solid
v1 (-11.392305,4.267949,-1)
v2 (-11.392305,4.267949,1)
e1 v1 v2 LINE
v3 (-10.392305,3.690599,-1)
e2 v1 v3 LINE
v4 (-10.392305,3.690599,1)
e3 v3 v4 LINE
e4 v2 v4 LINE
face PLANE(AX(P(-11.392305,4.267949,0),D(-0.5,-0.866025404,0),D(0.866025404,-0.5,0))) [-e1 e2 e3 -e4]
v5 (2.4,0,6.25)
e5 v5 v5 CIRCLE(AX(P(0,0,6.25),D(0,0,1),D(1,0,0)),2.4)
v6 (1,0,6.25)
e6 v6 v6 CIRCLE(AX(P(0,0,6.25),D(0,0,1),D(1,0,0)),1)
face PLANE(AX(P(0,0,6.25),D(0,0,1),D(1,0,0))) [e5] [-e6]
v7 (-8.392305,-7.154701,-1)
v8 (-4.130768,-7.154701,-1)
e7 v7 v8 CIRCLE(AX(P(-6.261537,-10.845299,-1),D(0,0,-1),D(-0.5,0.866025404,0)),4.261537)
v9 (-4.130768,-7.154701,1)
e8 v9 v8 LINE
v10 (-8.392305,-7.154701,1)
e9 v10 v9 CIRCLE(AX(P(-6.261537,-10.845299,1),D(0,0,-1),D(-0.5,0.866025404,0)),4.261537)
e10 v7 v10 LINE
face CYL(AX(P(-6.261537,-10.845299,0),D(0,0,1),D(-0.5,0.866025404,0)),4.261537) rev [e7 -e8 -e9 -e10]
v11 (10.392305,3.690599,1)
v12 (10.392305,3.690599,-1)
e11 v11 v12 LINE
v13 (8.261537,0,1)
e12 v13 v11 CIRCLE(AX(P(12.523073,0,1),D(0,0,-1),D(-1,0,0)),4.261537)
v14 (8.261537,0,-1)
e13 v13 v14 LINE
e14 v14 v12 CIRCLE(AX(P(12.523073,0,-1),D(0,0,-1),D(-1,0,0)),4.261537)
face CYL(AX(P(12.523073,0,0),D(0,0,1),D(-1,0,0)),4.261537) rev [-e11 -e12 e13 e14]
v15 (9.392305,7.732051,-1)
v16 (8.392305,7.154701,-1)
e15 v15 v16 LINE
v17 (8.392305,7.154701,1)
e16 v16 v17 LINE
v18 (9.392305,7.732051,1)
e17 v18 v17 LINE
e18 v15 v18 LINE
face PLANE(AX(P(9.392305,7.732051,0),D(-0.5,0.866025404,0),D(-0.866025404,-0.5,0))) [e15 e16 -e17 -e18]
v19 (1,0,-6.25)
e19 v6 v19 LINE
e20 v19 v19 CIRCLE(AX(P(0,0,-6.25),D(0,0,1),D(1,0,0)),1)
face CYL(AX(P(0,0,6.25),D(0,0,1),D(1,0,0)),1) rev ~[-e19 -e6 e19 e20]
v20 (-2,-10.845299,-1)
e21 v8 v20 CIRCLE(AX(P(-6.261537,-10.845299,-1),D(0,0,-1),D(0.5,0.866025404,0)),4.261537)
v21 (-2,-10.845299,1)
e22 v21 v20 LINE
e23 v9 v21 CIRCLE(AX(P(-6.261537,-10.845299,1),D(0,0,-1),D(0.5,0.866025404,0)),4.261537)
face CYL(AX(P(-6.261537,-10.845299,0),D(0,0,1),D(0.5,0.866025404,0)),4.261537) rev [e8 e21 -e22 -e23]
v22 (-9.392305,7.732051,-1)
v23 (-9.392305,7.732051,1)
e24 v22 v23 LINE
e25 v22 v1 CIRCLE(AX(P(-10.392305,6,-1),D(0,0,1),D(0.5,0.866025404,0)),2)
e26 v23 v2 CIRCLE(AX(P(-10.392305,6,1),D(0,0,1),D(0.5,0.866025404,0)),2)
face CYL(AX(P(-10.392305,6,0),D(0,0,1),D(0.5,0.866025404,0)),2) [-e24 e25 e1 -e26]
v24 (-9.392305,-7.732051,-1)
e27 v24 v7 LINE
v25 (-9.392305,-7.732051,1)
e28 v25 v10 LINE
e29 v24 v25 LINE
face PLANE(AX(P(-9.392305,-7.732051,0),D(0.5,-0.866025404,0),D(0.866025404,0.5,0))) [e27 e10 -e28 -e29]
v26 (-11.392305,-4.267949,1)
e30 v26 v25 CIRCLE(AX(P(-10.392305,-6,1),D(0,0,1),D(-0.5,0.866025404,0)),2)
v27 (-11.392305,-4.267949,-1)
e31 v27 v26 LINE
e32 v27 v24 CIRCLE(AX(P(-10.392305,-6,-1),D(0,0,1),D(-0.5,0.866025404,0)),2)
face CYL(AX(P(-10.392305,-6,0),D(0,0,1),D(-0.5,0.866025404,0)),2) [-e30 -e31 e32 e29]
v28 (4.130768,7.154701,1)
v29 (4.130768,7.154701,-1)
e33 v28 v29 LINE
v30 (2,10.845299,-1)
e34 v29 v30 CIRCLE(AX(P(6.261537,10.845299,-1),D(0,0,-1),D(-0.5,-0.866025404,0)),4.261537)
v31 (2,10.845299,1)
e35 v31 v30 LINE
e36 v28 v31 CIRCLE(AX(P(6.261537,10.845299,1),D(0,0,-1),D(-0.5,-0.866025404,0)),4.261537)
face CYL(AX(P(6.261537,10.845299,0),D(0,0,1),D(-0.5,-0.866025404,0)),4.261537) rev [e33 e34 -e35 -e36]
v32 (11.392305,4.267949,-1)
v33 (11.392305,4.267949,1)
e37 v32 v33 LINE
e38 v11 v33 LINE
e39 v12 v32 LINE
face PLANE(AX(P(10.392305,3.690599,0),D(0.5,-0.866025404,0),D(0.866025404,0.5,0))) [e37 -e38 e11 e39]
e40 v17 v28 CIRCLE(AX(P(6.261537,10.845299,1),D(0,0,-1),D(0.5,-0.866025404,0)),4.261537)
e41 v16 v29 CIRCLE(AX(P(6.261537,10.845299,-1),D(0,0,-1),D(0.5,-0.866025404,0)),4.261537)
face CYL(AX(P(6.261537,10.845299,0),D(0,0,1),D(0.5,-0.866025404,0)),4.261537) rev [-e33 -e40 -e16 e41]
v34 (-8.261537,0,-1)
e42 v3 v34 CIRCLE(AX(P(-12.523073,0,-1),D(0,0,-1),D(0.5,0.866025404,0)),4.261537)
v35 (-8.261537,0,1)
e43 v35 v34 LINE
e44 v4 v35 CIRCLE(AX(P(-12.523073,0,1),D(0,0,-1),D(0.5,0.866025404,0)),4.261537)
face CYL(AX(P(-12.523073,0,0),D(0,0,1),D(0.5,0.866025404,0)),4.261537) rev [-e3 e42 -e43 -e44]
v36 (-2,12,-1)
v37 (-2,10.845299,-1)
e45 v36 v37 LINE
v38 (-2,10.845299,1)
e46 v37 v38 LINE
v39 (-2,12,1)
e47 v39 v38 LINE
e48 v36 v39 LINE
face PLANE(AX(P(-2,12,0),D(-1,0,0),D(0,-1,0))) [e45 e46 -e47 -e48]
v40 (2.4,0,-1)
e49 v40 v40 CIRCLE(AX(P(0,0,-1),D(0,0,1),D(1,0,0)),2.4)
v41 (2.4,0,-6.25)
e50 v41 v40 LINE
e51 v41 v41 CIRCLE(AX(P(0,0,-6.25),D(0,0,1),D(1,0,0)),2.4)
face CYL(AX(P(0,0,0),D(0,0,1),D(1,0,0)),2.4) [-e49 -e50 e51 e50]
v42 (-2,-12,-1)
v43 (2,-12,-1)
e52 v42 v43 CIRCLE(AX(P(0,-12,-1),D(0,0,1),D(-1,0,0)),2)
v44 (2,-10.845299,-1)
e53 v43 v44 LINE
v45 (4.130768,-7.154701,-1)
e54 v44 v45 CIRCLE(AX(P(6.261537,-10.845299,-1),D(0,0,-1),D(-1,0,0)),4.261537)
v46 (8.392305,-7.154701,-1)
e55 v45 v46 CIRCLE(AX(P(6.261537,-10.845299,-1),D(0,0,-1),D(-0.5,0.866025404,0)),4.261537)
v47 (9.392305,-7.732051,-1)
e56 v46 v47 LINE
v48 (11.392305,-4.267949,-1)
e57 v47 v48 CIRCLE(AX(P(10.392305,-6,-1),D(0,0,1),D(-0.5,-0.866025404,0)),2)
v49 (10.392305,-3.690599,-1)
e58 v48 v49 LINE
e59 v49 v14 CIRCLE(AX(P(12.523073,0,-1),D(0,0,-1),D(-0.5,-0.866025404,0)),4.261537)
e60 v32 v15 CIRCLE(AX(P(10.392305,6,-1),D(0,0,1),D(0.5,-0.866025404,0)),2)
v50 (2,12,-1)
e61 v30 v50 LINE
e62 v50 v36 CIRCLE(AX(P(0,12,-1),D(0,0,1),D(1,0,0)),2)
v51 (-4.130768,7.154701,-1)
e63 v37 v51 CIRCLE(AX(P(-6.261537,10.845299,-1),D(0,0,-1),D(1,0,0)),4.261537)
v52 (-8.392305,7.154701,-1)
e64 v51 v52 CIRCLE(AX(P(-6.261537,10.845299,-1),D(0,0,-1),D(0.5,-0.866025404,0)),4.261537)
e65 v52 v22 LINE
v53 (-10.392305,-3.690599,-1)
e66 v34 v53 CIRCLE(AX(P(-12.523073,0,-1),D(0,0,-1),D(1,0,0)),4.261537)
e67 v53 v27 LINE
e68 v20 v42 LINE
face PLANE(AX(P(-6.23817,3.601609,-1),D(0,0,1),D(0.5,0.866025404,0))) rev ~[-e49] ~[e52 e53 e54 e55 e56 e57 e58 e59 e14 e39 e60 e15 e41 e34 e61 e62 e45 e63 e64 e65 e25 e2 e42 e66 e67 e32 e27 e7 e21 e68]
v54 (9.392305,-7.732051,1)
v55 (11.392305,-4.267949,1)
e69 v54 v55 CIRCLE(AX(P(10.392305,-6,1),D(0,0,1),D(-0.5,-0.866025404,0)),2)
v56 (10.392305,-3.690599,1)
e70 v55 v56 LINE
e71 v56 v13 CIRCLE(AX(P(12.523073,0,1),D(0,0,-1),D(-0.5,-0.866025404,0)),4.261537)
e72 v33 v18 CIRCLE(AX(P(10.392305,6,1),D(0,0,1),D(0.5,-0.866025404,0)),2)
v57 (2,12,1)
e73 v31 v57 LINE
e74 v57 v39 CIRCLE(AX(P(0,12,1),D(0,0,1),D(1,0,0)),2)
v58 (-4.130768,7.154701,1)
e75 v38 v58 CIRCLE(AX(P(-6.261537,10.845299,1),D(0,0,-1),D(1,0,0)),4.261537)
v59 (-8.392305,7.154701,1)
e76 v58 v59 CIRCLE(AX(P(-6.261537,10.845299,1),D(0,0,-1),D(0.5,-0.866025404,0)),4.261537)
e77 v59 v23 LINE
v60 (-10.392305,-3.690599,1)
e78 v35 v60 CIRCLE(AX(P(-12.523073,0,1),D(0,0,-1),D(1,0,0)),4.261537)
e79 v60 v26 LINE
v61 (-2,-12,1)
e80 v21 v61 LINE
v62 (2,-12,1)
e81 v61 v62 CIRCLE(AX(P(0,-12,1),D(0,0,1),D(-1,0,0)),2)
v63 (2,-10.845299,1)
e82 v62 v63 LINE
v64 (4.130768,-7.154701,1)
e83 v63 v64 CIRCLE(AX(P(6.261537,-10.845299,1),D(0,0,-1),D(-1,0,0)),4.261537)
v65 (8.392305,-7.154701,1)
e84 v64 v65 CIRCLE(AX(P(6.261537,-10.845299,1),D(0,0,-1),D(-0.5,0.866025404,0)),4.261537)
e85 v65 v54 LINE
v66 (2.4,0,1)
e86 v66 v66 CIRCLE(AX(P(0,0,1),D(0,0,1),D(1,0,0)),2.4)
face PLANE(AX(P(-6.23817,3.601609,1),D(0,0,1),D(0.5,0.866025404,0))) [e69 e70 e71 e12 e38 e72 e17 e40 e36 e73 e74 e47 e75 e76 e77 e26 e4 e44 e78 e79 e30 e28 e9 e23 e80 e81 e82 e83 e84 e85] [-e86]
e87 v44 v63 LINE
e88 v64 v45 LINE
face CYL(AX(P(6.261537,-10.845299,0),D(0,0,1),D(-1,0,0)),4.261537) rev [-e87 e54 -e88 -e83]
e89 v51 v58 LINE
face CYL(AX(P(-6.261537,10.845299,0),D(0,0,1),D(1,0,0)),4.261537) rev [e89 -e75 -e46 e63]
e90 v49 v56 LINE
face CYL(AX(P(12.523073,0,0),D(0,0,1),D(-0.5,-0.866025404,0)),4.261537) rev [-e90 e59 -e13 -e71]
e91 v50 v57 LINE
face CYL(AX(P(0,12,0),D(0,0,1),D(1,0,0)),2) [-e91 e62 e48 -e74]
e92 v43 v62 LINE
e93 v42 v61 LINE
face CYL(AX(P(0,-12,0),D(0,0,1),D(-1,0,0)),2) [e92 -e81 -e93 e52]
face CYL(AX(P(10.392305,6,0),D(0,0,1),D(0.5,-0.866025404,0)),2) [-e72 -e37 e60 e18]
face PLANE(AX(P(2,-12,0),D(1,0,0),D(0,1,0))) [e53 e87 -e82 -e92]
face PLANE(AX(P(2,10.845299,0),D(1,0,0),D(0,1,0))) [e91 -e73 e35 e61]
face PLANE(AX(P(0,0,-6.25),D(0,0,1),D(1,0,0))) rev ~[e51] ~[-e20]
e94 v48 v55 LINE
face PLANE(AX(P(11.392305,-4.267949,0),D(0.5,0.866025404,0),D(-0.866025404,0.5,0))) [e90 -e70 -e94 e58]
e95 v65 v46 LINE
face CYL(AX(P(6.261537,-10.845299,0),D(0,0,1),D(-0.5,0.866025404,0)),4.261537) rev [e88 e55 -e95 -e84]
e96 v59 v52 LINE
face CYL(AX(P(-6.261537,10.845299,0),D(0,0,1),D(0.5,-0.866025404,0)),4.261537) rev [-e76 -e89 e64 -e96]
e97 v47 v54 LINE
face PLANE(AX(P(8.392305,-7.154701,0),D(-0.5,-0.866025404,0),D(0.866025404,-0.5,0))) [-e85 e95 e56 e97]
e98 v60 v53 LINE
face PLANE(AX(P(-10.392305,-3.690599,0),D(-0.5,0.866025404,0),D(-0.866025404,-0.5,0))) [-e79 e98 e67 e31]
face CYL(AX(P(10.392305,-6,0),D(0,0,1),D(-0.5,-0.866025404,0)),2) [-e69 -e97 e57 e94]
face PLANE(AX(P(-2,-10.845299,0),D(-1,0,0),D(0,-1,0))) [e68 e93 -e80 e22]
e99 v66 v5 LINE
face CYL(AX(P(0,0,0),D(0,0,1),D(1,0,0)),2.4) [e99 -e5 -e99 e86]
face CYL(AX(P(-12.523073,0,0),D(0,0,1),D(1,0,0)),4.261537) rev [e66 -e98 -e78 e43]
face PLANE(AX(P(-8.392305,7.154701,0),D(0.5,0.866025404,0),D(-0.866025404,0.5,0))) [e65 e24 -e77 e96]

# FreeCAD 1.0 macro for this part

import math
import FreeCAD as App
import Part
import Sketcher
Q = App.Units.Quantity

doc = App.newDocument("Part")
body = doc.addObject("PartDesign::Body", "Body")

# Sketch on XY plane
sketch1 = body.newObject("Sketcher::SketchObject", "Sketch")
sketch1.AttachmentSupport = (doc.getObject("XY_Plane"), [""])
sketch1.MapMode = "FlatFace"
sketch1.addGeometry([
    Part.LineSegment(App.Vector(2, 10.8, 0), App.Vector(2, 12, 0)),  # 0
    Part.ArcOfCircle(Part.Circle(App.Vector(0, 12, 0), App.Vector(0, 0, 1), 2), math.radians(0), math.radians(180)),  # 1
    Part.LineSegment(App.Vector(-2, 12, 0), App.Vector(-2, 10.8, 0)),  # 2
    Part.ArcOfCircle(Part.Circle(App.Vector(-6.3, 10.8, 0), App.Vector(0, 0, 1), 4.3), math.radians(-60), math.radians(0)),  # 3
    Part.LineSegment(App.Vector(-4.1, 7.2, 0), App.Vector(0, 0, 0)),  # 4
    Part.LineSegment(App.Vector(0, 0, 0), App.Vector(4.1, 7.2, 0)),  # 5
    Part.ArcOfCircle(Part.Circle(App.Vector(6.3, 10.8, 0), App.Vector(0, 0, 1), 4.3), math.radians(180), math.radians(240)),  # 6
], False)
sketch1.addConstraint([
    Sketcher.Constraint("Tangent", 0, 2, 1, 1),
    Sketcher.Constraint("Tangent", 1, 2, 2, 1),
    Sketcher.Constraint("Tangent", 2, 2, 3, 2),
    Sketcher.Constraint("Coincident", 3, 1, 4, 1),
    Sketcher.Constraint("Coincident", 4, 2, 5, 1),
    Sketcher.Constraint("Coincident", 5, 2, 6, 2),
    Sketcher.Constraint("Tangent", 6, 1, 0, 1),
    Sketcher.Constraint("Vertical", 0),
    Sketcher.Constraint("Vertical", 2),
    Sketcher.Constraint("Coincident", 4, 2, -1, 1),
    Sketcher.Constraint("Equal", 3, 6),
    Sketcher.Constraint("Symmetric", 3, 3, 6, 3, -2),
    Sketcher.Constraint("Horizontal", 3, 1, 5, 2),
    Sketcher.Constraint("Radius", 1, 2.0),
    Sketcher.Constraint("Angle", 4, Q("-60 deg")),
    Sketcher.Constraint("DistanceY", -1, 1, 1, 3, 12.0),
    Sketcher.Constraint("DistanceY", 0, 1, 0, 2, 1.154701),
    Sketcher.Constraint("Radius", 3, 4.261537),
])
pad1 = body.newObject("PartDesign::Pad", "Pad")
pad1.Profile = sketch1
pad1.Length = 2
pad1.Midplane = True
body2 = doc.addObject("PartDesign::Body", "Body001")
doc.recompute()

body2.BaseFeature = body
doc.recompute()

body3 = doc.addObject("PartDesign::Body", "Body002")
body3.BaseFeature = body
body3.Placement = App.Placement(App.Vector(0, 0, 0), App.Rotation(App.Vector(0, 0, -1), 60))
boolean = body2.newObject("PartDesign::Boolean", "Boolean")
boolean.Type = "Fuse"
boolean.addObjects([body3])
doc.recompute()

body4 = doc.addObject("PartDesign::Body", "Body003")
body4.BaseFeature = body
body4.Placement = App.Placement(App.Vector(0, 0, 0), App.Rotation(App.Vector(0, 0, -1), 120))
boolean2 = body2.newObject("PartDesign::Boolean", "Boolean001")
boolean2.Type = "Fuse"
boolean2.addObjects([body4])
doc.recompute()

body5 = doc.addObject("PartDesign::Body", "Body004")
body5.BaseFeature = body
body5.Placement = App.Placement(App.Vector(0, 0, 0), App.Rotation(App.Vector(0, 0, -1), 180))
boolean3 = body2.newObject("PartDesign::Boolean", "Boolean002")
boolean3.Type = "Fuse"
boolean3.addObjects([body5])
doc.recompute()

body6 = doc.addObject("PartDesign::Body", "Body005")
body6.BaseFeature = body
body6.Placement = App.Placement(App.Vector(0, 0, 0), App.Rotation(App.Vector(0, 0, -1), 240))
boolean4 = body2.newObject("PartDesign::Boolean", "Boolean003")
boolean4.Type = "Fuse"
boolean4.addObjects([body6])
doc.recompute()

body.Placement = App.Placement(App.Vector(0, 0, 0), App.Rotation(App.Vector(0, 0, -1), 300))
boolean5 = body2.newObject("PartDesign::Boolean", "Boolean004")
boolean5.Type = "Fuse"
boolean5.addObjects([body])

# Sketch on XY plane
sketch2 = body2.newObject("Sketcher::SketchObject", "Sketch001")
sketch2.AttachmentSupport = (doc.getObject("XY_Plane001"), [""])
sketch2.MapMode = "FlatFace"
sketch2.addGeometry(Part.Circle(App.Vector(0, 0, 0), App.Vector(0, 0, 1), 2.4), False)
sketch2.addConstraint([
    Sketcher.Constraint("Coincident", 0, 3, -1, 1),
    Sketcher.Constraint("Diameter", 0, 4.8),
])
pad2 = body2.newObject("PartDesign::Pad", "Pad001")
pad2.Profile = sketch2
pad2.Length = 12.5
pad2.Midplane = True

# Sketch on XY plane
sketch3 = body2.newObject("Sketcher::SketchObject", "Sketch002")
sketch3.AttachmentSupport = (doc.getObject("XY_Plane001"), [""])
sketch3.MapMode = "FlatFace"
sketch3.AttachmentOffset = App.Placement(App.Vector(0, 0, 6.25), App.Rotation())
sketch3.addGeometry(Part.Circle(App.Vector(0, 0, 0), App.Vector(0, 0, 1), 1), False)
sketch3.addConstraint([
    Sketcher.Constraint("Coincident", 0, 3, -1, 1),
    Sketcher.Constraint("Diameter", 0, 2.0),
])
pocket1 = body2.newObject("PartDesign::Pocket", "Pocket")
pocket1.Profile = sketch3
pocket1.Type = "ThroughAll"

doc.recompute()
